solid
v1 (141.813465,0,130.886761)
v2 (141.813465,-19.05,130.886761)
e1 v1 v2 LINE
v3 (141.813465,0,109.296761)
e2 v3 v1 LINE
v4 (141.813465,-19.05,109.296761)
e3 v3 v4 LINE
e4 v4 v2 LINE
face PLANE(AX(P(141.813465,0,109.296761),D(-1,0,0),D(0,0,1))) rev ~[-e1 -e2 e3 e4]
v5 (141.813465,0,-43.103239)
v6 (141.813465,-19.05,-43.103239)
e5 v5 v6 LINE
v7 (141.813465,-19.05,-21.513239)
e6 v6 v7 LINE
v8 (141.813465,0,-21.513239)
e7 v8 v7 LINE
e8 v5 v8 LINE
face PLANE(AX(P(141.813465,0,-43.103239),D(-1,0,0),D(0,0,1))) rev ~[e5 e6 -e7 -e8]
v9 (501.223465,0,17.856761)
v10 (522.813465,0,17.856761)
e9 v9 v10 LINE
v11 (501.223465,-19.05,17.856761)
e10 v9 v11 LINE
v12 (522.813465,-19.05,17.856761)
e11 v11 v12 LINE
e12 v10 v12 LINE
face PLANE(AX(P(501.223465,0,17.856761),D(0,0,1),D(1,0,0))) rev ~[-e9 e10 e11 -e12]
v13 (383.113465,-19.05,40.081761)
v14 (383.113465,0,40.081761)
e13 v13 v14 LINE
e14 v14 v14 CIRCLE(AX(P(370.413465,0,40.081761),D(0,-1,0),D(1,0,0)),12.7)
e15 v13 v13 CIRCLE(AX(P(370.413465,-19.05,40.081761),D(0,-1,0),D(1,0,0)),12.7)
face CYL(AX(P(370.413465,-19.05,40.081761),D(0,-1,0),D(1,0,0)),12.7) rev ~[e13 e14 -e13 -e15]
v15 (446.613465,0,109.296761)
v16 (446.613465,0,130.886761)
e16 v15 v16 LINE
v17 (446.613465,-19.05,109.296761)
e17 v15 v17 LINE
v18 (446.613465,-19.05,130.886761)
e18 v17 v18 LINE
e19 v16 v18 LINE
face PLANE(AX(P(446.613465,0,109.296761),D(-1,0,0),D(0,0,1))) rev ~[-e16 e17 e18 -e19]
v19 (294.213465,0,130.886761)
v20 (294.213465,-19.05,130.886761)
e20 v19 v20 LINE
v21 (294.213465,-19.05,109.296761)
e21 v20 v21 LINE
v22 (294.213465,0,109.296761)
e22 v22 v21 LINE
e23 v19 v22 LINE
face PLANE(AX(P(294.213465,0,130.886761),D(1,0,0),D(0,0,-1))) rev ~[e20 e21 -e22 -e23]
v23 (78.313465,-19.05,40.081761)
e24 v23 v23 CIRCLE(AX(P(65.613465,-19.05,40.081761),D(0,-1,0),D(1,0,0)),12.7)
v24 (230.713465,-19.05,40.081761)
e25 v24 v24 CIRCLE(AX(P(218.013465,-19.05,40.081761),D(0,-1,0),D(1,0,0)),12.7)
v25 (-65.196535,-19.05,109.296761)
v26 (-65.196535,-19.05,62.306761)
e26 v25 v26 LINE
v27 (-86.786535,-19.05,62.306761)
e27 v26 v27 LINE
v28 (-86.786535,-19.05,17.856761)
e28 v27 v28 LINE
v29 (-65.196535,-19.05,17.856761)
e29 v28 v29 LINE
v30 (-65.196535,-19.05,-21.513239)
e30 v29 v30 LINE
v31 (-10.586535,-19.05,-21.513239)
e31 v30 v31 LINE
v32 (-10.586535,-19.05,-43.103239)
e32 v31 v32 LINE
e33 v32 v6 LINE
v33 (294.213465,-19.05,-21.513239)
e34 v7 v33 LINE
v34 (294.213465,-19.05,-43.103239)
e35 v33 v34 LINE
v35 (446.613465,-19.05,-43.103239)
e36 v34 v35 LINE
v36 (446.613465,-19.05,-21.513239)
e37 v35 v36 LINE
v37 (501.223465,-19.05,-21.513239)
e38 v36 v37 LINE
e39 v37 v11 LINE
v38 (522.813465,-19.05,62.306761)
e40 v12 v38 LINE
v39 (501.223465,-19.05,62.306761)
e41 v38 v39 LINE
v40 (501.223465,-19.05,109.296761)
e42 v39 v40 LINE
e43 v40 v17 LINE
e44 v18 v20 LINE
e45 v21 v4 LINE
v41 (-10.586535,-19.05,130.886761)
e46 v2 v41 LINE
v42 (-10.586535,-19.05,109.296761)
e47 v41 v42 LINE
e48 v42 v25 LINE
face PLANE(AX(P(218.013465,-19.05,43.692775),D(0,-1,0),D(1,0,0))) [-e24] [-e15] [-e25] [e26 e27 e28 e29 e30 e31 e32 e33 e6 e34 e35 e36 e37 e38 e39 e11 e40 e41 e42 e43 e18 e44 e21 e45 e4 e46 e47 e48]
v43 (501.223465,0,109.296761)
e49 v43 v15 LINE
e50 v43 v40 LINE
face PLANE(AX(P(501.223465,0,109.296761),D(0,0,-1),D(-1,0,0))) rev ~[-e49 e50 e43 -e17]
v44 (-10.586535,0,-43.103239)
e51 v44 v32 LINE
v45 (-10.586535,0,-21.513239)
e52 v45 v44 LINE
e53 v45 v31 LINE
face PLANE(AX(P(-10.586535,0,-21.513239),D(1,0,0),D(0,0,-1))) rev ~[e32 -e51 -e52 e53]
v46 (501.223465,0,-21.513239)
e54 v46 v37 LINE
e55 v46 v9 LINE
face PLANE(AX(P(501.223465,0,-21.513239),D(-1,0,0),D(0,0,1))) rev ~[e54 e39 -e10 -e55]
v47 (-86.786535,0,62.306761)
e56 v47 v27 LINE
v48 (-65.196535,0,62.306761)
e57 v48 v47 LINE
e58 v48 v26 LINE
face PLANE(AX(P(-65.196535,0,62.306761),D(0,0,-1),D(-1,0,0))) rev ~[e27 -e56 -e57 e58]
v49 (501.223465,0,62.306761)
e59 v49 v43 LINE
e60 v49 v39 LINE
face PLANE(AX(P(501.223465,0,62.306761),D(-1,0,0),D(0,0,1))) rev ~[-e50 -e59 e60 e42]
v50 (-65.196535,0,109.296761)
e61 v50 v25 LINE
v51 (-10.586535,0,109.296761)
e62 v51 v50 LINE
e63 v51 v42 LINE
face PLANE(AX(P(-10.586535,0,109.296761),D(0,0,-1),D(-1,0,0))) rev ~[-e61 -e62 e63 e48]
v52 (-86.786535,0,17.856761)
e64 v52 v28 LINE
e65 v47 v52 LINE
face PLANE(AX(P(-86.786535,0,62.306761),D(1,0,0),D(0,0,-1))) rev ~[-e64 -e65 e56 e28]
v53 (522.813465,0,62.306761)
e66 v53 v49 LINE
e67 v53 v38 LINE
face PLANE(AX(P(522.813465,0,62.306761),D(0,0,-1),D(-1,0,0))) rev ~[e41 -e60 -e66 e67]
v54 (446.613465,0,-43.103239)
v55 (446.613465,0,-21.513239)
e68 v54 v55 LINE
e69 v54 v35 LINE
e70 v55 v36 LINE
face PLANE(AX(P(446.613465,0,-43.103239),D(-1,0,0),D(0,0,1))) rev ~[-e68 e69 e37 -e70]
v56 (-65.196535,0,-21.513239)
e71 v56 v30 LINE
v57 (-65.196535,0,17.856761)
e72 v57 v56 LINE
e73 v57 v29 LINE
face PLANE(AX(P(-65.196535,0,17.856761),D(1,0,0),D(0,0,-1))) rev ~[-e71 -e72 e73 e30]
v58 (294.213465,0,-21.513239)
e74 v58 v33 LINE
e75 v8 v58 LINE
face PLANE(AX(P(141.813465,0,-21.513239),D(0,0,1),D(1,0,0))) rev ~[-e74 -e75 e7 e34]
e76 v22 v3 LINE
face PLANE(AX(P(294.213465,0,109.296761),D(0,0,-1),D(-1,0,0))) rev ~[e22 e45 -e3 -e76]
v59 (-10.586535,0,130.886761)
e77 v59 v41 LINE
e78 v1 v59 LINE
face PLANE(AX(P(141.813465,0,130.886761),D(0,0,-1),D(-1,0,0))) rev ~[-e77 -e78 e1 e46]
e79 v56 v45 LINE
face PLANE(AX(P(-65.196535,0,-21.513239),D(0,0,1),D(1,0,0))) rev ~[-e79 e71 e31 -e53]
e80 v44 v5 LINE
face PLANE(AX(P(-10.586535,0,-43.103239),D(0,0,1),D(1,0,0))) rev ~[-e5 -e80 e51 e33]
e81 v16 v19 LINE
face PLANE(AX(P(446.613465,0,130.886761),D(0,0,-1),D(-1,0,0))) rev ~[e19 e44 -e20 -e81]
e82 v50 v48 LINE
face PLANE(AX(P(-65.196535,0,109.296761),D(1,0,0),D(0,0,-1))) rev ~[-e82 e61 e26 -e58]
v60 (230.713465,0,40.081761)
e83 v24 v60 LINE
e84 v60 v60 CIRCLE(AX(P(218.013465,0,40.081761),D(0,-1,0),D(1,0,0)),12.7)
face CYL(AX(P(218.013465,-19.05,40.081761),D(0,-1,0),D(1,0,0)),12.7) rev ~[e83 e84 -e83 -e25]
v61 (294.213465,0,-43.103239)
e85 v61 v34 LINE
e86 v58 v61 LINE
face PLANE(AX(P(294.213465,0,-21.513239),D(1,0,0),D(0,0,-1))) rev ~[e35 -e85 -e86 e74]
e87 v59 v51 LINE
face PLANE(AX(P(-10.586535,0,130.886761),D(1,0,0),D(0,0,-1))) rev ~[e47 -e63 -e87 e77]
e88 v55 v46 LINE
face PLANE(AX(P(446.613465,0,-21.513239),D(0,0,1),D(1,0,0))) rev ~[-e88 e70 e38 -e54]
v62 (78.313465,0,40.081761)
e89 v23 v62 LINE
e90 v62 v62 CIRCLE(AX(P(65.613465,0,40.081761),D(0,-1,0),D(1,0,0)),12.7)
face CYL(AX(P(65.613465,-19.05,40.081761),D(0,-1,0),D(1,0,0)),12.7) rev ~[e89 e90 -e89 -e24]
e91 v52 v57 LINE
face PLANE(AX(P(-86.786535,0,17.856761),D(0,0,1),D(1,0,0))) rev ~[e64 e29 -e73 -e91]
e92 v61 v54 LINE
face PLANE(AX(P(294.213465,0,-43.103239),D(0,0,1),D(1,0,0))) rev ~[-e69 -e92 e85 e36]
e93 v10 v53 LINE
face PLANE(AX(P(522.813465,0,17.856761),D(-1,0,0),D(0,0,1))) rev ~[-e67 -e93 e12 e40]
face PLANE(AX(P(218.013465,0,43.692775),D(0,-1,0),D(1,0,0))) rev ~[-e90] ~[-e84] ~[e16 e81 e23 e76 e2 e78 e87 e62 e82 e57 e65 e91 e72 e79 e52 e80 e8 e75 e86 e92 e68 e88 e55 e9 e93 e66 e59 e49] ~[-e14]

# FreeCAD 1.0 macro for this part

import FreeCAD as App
import Part
import Sketcher
Q = App.Units.Quantity


def add_polygon(sketch, points):
    """Adds a closed chain of lines whose ends are joined by coincident constraints."""
    first, n = sketch.GeometryCount, len(points)
    for a, b in zip(points, points[1:] + points[:1]):
        sketch.addGeometry(Part.LineSegment(App.Vector(*a, 0), App.Vector(*b, 0)), False)
    for i in range(n):
        sketch.addConstraint(Sketcher.Constraint("Coincident", first + i, 2, first + (i + 1) % n, 1))

doc = App.newDocument("Part")
body = doc.addObject("PartDesign::Body", "Body")

# Sketch on XZ plane
sketch1 = body.newObject("Sketcher::SketchObject", "Sketch")
sketch1.AttachmentSupport = (doc.getObject("XZ_Plane"), [""])
sketch1.MapMode = "FlatFace"
add_polygon(sketch1, [(-87, 62), (-87, 18), (-65, 18), (-65, -22), (-11, -22), (-11, -43), (142, -43), (142, -22), (294, -22), (294, -43), (447, -43), (447, -22), (501, -22), (501, 18), (523, 18), (523, 62), (501, 62), (501, 109), (447, 109), (447, 131), (294, 131), (294, 109), (142, 109), (142, 131), (-11, 131), (-11, 109), (-65, 109), (-65, 62)])  # lines 0-27
sketch1.addConstraint(Sketcher.Constraint("Vertical", 0))
sketch1.addConstraint(Sketcher.Constraint("Horizontal", 1))
sketch1.addConstraint(Sketcher.Constraint("Vertical", 2))
sketch1.addConstraint(Sketcher.Constraint("Horizontal", 3))
sketch1.addConstraint(Sketcher.Constraint("Vertical", 4))
sketch1.addConstraint(Sketcher.Constraint("Horizontal", 5))
sketch1.addConstraint(Sketcher.Constraint("Vertical", 6))
sketch1.addConstraint(Sketcher.Constraint("Horizontal", 7))
sketch1.addConstraint(Sketcher.Constraint("Vertical", 8))
sketch1.addConstraint(Sketcher.Constraint("Horizontal", 9))
sketch1.addConstraint(Sketcher.Constraint("Vertical", 10))
sketch1.addConstraint(Sketcher.Constraint("Horizontal", 11))
sketch1.addConstraint(Sketcher.Constraint("Vertical", 12))
sketch1.addConstraint(Sketcher.Constraint("Horizontal", 13))
sketch1.addConstraint(Sketcher.Constraint("Vertical", 14))
sketch1.addConstraint(Sketcher.Constraint("Horizontal", 15))
sketch1.addConstraint(Sketcher.Constraint("Vertical", 16))
sketch1.addConstraint(Sketcher.Constraint("Horizontal", 17))
sketch1.addConstraint(Sketcher.Constraint("Vertical", 18))
sketch1.addConstraint(Sketcher.Constraint("Horizontal", 19))
sketch1.addConstraint(Sketcher.Constraint("Vertical", 20))
sketch1.addConstraint(Sketcher.Constraint("Horizontal", 21))
sketch1.addConstraint(Sketcher.Constraint("Vertical", 22))
sketch1.addConstraint(Sketcher.Constraint("Horizontal", 23))
sketch1.addConstraint(Sketcher.Constraint("Vertical", 24))
sketch1.addConstraint(Sketcher.Constraint("Horizontal", 25))
sketch1.addConstraint(Sketcher.Constraint("Vertical", 26))
sketch1.addConstraint(Sketcher.Constraint("Horizontal", 27))
sketch1.addConstraint(Sketcher.Constraint("Horizontal", 3, 2, 6, 2))
sketch1.addConstraint(Sketcher.Constraint("Horizontal", 5, 2, 8, 2))
sketch1.addConstraint(Sketcher.Constraint("Horizontal", 7, 2, 10, 2))
sketch1.addConstraint(Sketcher.Constraint("Horizontal", 1, 2, 12, 2))
sketch1.addConstraint(Sketcher.Constraint("Horizontal", 17, 2, 20, 2))
sketch1.addConstraint(Sketcher.Constraint("Horizontal", 19, 2, 22, 2))
sketch1.addConstraint(Sketcher.Constraint("Horizontal", 21, 2, 24, 2))
sketch1.addConstraint(Sketcher.Constraint("Horizontal", 15, 2, 26, 2))
sketch1.addConstraint(Sketcher.Constraint("Vertical", 12, 2, 15, 2))
sketch1.addConstraint(Sketcher.Constraint("Vertical", 10, 2, 17, 2))
sketch1.addConstraint(Sketcher.Constraint("Vertical", 8, 2, 19, 2))
sketch1.addConstraint(Sketcher.Constraint("Vertical", 6, 2, 21, 2))
sketch1.addConstraint(Sketcher.Constraint("Vertical", 4, 2, 23, 2))
sketch1.addConstraint(Sketcher.Constraint("Vertical", 2, 2, 25, 2))
sketch1.addConstraint(Sketcher.Constraint("Equal", 5, 7))
sketch1.addConstraint(Sketcher.Constraint("Equal", 7, 9))
sketch1.addConstraint(Sketcher.Constraint("Equal", 3, 11))
sketch1.addConstraint(Sketcher.Constraint("Equal", 1, 13))
sketch1.addConstraint(Sketcher.Constraint("Equal", 27, 4))
sketch1.addConstraint(Sketcher.Constraint("Equal", 10, 18))
sketch1.addConstraint(Sketcher.Constraint("DistanceX", 5, 1, 5, 2, Q("6 in")))
sketch1.addConstraint(Sketcher.Constraint("DistanceX", 0, 2, 3, 2, Q("3 in")))
sketch1.addConstraint(Sketcher.Constraint("DistanceY", 7, 2, 19, 2, Q("6 in")))
sketch1.addConstraint(Sketcher.Constraint("DistanceX", 1, 1, 1, 2, Q("0.85 in")))
sketch1.addConstraint(Sketcher.Constraint("DistanceY", 0, 2, 0, 1, Q("1.75 in")))
sketch1.addConstraint(Sketcher.Constraint("DistanceY", 2, 2, 2, 1, Q("1.55 in")))
sketch1.addConstraint(Sketcher.Constraint("DistanceY", -1, 1, 0, 2, Q("17.856761 mm")))
sketch1.addConstraint(Sketcher.Constraint("DistanceX", 0, 2, -1, 1, Q("86.786535 mm")))
pad1 = body.newObject("PartDesign::Pad", "Pad")
pad1.Profile = sketch1
pad1.Length = Q("0.75 in")

# Sketch on XZ plane
sketch2 = body.newObject("Sketcher::SketchObject", "Sketch001")
sketch2.AttachmentSupport = (doc.getObject("XZ_Plane"), [""])
sketch2.MapMode = "FlatFace"
sketch2.AttachmentOffset = App.Placement(App.Vector(0, 0, 0.75 * 25.4), App.Rotation())
sketch2.addGeometry(Part.Circle(App.Vector(66, 40, 0), App.Vector(0, 0, 1), 13), False)
sketch2.addGeometry(Part.Circle(App.Vector(218, 40, 0), App.Vector(0, 0, 1), 13), False)
sketch2.addGeometry(Part.Circle(App.Vector(370, 40, 0), App.Vector(0, 0, 1), 13), False)
sketch2.addConstraint(Sketcher.Constraint("Equal", 0, 1))
sketch2.addConstraint(Sketcher.Constraint("Equal", 1, 2))
sketch2.addConstraint(Sketcher.Constraint("Horizontal", 0, 3, 1, 3))
sketch2.addConstraint(Sketcher.Constraint("Horizontal", 1, 3, 2, 3))
sketch2.addConstraint(Sketcher.Constraint("Diameter", 0, Q("1 in")))
sketch2.addConstraint(Sketcher.Constraint("DistanceX", 0, 3, 1, 3, Q("6 in")))
sketch2.addConstraint(Sketcher.Constraint("DistanceX", 1, 3, 2, 3, Q("6 in")))
sketch2.addConstraint(Sketcher.Constraint("DistanceY", -1, 1, 0, 3, Q("40.081761 mm")))
sketch2.addConstraint(Sketcher.Constraint("DistanceX", -1, 1, 0, 3, Q("65.613465 mm")))
pocket1 = body.newObject("PartDesign::Pocket", "Pocket")
pocket1.Profile = sketch2
pocket1.Type = "ThroughAll"

doc.recompute()
